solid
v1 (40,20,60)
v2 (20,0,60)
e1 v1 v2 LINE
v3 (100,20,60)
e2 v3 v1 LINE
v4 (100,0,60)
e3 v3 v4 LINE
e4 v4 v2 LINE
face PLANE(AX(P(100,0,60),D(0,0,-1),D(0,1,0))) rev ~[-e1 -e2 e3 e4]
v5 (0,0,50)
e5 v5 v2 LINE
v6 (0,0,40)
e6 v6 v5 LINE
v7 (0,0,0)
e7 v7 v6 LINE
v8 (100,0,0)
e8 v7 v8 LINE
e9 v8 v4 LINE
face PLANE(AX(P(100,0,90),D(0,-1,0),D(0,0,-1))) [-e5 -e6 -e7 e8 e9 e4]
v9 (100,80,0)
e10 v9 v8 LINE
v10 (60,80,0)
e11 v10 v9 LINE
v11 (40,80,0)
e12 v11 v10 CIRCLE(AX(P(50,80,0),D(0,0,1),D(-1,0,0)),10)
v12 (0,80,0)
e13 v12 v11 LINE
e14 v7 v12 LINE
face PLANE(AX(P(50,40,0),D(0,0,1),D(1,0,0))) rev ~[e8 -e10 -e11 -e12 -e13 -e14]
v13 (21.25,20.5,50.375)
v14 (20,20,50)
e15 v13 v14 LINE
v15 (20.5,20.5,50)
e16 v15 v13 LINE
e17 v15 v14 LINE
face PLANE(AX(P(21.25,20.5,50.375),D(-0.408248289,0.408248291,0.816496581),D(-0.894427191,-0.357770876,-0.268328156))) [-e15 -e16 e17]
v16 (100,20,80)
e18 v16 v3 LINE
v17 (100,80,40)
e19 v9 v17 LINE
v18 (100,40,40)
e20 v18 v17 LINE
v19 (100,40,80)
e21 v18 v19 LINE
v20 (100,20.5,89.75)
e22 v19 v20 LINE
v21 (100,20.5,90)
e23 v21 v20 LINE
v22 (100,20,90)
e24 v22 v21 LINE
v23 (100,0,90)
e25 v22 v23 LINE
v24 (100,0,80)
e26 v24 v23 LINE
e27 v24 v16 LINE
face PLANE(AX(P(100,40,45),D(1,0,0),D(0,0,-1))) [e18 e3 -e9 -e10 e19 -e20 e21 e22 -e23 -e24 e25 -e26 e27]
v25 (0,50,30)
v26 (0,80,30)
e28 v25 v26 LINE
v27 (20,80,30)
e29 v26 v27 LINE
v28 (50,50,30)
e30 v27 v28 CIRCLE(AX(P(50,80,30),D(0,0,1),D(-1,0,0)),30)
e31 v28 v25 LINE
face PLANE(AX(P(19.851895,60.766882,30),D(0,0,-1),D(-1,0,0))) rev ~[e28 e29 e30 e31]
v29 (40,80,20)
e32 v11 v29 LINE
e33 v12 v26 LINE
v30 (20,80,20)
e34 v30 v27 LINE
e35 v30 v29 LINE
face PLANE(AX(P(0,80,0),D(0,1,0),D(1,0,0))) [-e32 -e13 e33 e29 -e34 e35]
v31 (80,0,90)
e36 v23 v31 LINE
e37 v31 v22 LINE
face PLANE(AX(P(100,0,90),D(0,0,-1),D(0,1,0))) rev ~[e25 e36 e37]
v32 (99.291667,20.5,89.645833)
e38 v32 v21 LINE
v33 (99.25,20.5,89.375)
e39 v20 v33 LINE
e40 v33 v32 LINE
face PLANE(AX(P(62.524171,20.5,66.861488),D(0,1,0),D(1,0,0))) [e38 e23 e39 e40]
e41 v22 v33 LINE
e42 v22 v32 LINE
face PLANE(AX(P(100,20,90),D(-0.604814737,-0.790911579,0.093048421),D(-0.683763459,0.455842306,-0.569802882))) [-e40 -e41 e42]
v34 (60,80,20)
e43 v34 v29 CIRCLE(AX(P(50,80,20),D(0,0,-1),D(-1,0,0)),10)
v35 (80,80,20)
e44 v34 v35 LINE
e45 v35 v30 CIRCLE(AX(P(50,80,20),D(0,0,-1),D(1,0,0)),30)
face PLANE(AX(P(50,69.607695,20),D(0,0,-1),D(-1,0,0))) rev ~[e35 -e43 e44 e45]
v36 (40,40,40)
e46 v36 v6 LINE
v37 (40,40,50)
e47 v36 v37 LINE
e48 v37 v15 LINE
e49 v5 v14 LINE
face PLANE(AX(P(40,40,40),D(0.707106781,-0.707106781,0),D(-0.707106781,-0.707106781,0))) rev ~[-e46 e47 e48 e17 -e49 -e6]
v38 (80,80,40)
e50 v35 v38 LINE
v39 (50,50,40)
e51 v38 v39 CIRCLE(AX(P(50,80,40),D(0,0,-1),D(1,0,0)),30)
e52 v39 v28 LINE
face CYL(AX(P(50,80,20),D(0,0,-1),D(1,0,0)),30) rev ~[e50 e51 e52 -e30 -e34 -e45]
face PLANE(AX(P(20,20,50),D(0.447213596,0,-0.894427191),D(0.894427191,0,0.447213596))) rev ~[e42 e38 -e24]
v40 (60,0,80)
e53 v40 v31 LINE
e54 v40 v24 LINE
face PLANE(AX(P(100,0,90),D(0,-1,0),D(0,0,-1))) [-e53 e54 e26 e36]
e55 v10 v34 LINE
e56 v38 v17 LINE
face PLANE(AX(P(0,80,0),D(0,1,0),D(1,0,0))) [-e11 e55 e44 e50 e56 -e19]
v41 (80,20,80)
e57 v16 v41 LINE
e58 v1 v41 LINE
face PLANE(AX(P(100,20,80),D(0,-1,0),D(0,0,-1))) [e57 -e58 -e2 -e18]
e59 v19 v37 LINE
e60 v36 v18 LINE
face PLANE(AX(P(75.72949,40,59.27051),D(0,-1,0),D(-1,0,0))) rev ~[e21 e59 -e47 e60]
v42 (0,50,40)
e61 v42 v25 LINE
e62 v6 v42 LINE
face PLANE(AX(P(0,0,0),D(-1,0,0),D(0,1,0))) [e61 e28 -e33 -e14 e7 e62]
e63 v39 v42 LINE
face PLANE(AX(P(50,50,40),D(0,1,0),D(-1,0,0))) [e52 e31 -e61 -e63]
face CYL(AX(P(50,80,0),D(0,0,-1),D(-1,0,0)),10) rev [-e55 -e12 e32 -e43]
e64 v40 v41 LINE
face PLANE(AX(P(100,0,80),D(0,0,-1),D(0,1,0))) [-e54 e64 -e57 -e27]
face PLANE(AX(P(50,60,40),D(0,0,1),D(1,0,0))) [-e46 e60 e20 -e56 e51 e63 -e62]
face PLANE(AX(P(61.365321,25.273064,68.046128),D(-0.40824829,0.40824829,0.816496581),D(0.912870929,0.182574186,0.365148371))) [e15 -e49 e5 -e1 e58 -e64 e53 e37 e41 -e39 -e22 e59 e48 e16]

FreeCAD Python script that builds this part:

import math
import FreeCAD as App
import Part
import Sketcher
from FreeCAD import Vector
Q = App.Units.Quantity


def add_polygon(sketch, points):
    """Adds a closed chain of lines whose ends are joined by coincident constraints."""
    first, n = sketch.GeometryCount, len(points)
    for a, b in zip(points, points[1:] + points[:1]):
        sketch.addGeometry(Part.LineSegment(App.Vector(*a, 0), App.Vector(*b, 0)), False)
    for i in range(n):
        sketch.addConstraint(Sketcher.Constraint("Coincident", first + i, 2, first + (i + 1) % n, 1))

doc = App.newDocument("Part")
body = doc.addObject("PartDesign::Body", "Body")
body.AllowCompound = True

sketch1 = doc.addObject("Sketcher::SketchObject", "Sketch")
body.addObject(sketch1)
sketch1.AttachmentSupport = (doc.XY_Plane, [""])
sketch1.MapMode = "FlatFace"
add_polygon(sketch1, [(0, 80), (0, 0), (100, 0), (100, 80)])
sketch1.addConstraint(Sketcher.Constraint("Vertical", 0))
sketch1.addConstraint(Sketcher.Constraint("Horizontal", 1))
sketch1.addConstraint(Sketcher.Constraint("Vertical", 2))
sketch1.addConstraint(Sketcher.Constraint("Horizontal", 3))
sketch1.addConstraint(Sketcher.Constraint("Coincident", 0, 2, -1, 1))
sketch1.addConstraint(Sketcher.Constraint("DistanceX", 1, 1, 1, 2, 100.0))
sketch1.addConstraint(Sketcher.Constraint("DistanceY", 0, 2, 0, 1, 80.0))
pad1 = doc.addObject("PartDesign::Pad", "Pad")
body.addObject(pad1)
pad1.Profile = sketch1
pad1.Length = 90

sketch2 = doc.addObject("Sketcher::SketchObject", "Sketch001")
body.addObject(sketch2)
sketch2.AttachmentSupport = (doc.XZ_Plane, [""])
sketch2.MapMode = "FlatFace"
sketch2.AttachmentOffset = App.Placement(Vector(0, 0, -80), App.Rotation())
add_polygon(sketch2, [(20, 60), (0, 50), (0, 90), (80, 90), (60, 80), (80, 80), (40, 60)])
sketch2.addConstraint(Sketcher.Constraint("Vertical", 1))
sketch2.addConstraint(Sketcher.Constraint("Horizontal", 2))
sketch2.addConstraint(Sketcher.Constraint("Horizontal", 4))
sketch2.addConstraint(Sketcher.Constraint("Horizontal", 6))
sketch2.addConstraint(Sketcher.Constraint("PointOnObject", 0, 2, -2))
sketch2.addConstraint(Sketcher.Constraint("Parallel", 0, 3))
sketch2.addConstraint(Sketcher.Constraint("Parallel", 3, 5))
sketch2.addConstraint(Sketcher.Constraint("Vertical", 2, 2, 4, 2))
sketch2.addConstraint(Sketcher.Constraint("Equal", 4, 6))
sketch2.addConstraint(Sketcher.Constraint("Equal", 0, 3))
sketch2.addConstraint(Sketcher.Constraint("DistanceX", 2, 1, 2, 2, 80.0))
sketch2.addConstraint(Sketcher.Constraint("DistanceX", 4, 1, 4, 2, 20.0))
sketch2.addConstraint(Sketcher.Constraint("DistanceY", 1, 1, 1, 2, 40.0))
sketch2.addConstraint(Sketcher.Constraint("DistanceY", -1, 1, 0, 2, 50.0))
pocket1 = doc.addObject("PartDesign::Pocket", "Pocket")
body.addObject(pocket1)
pocket1.Profile = sketch2
pocket1.Length = 90
pocket1.Reversed = True

sketch3 = doc.addObject("Sketcher::SketchObject", "Sketch002")
body.addObject(sketch3)
sketch3.AttachmentSupport = (doc.YZ_Plane, [""])
sketch3.MapMode = "FlatFace"
sketch3.AttachmentOffset = App.Placement(Vector(0, 0, 100), App.Rotation())
add_polygon(sketch3, [(20, 80), (0, 80), (0, 60), (20, 60)])
sketch3.addConstraint(Sketcher.Constraint("Horizontal", 0))
sketch3.addConstraint(Sketcher.Constraint("Vertical", 1))
sketch3.addConstraint(Sketcher.Constraint("Horizontal", 2))
sketch3.addConstraint(Sketcher.Constraint("Vertical", 3))
sketch3.addConstraint(Sketcher.Constraint("PointOnObject", 0, 2, -2))
sketch3.addConstraint(Sketcher.Constraint("Equal", 2, 1))
sketch3.addConstraint(Sketcher.Constraint("DistanceX", 0, 2, 0, 1, 20.0))
sketch3.addConstraint(Sketcher.Constraint("DistanceY", -1, 1, 0, 2, 80.0))
pocket2 = doc.addObject("PartDesign::Pocket", "Pocket001")
body.addObject(pocket2)
pocket2.Profile = sketch3
pocket2.Length = 90

sketch4 = doc.addObject("Sketcher::SketchObject", "Sketch003")
body.addObject(sketch4)
sketch4.AttachmentSupport = (doc.XY_Plane, [""])
sketch4.MapMode = "FlatFace"
sketch4.addGeometry(Part.LineSegment(Vector(40, 80, 0), Vector(60, 80, 0)), False)
sketch4.addGeometry(Part.ArcOfCircle(Part.Circle(Vector(50, 80, 0), Vector(0, 0, 1), 10), math.radians(180), math.radians(360)), False)
sketch4.addConstraint(Sketcher.Constraint("Coincident", 0, 1, 1, 1))
sketch4.addConstraint(Sketcher.Constraint("Coincident", 1, 2, 0, 2))
sketch4.addConstraint(Sketcher.Constraint("Horizontal", 0))
sketch4.addConstraint(Sketcher.Constraint("Horizontal", 1, 3, 0, 1))
sketch4.addConstraint(Sketcher.Constraint("Radius", 1, 10.0))
sketch4.addConstraint(Sketcher.Constraint("DistanceX", -1, 1, 1, 3, 50.0))
sketch4.addConstraint(Sketcher.Constraint("DistanceY", -1, 1, 1, 3, 80.0))
pocket3 = doc.addObject("PartDesign::Pocket", "Pocket002")
body.addObject(pocket3)
pocket3.Profile = sketch4
pocket3.Length = 90
pocket3.Reversed = True

sketch5 = doc.addObject("Sketcher::SketchObject", "Sketch004")
body.addObject(sketch5)
sketch5.AttachmentSupport = (doc.XY_Plane, [""])
sketch5.MapMode = "FlatFace"
sketch5.AttachmentOffset = App.Placement(Vector(0, 0, 20), App.Rotation())
sketch5.addGeometry(Part.LineSegment(Vector(80, 80, 0), Vector(20, 80, 0)), False)
sketch5.addGeometry(Part.ArcOfCircle(Part.Circle(Vector(50, 80, 0), Vector(0, 0, 1), 30), math.radians(180), math.radians(360)), False)
sketch5.addConstraint(Sketcher.Constraint("Coincident", 0, 1, 1, 2))
sketch5.addConstraint(Sketcher.Constraint("Coincident", 1, 1, 0, 2))
sketch5.addConstraint(Sketcher.Constraint("Horizontal", 0))
sketch5.addConstraint(Sketcher.Constraint("Horizontal", 1, 3, 0, 1))
sketch5.addConstraint(Sketcher.Constraint("Radius", 1, 30.0))
sketch5.addConstraint(Sketcher.Constraint("DistanceX", -1, 1, 1, 3, 50.0))
sketch5.addConstraint(Sketcher.Constraint("DistanceY", -1, 1, 1, 3, 80.0))
pocket4 = doc.addObject("PartDesign::Pocket", "Pocket003")
body.addObject(pocket4)
pocket4.Profile = sketch5
pocket4.Length = 90
pocket4.Reversed = True

sketch6 = doc.addObject("Sketcher::SketchObject", "Sketch005")
body.addObject(sketch6)
sketch6.AttachmentSupport = (doc.XY_Plane, [""])
sketch6.MapMode = "FlatFace"
sketch6.AttachmentOffset = App.Placement(Vector(0, 0, 40), App.Rotation())
add_polygon(sketch6, [(0, 80), (0, 40), (100, 40), (100, 80)])
sketch6.addConstraint(Sketcher.Constraint("Vertical", 0))
sketch6.addConstraint(Sketcher.Constraint("Horizontal", 1))
sketch6.addConstraint(Sketcher.Constraint("Vertical", 2))
sketch6.addConstraint(Sketcher.Constraint("Horizontal", 3))
sketch6.addConstraint(Sketcher.Constraint("PointOnObject", 0, 2, -2))
sketch6.addConstraint(Sketcher.Constraint("DistanceX", 1, 1, 1, 2, 100.0))
sketch6.addConstraint(Sketcher.Constraint("DistanceY", 0, 2, 0, 1, 40.0))
sketch6.addConstraint(Sketcher.Constraint("DistanceY", -1, 1, 0, 2, 40.0))
pocket5 = doc.addObject("PartDesign::Pocket", "Pocket004")
body.addObject(pocket5)
pocket5.Profile = sketch6
pocket5.Length = 90
pocket5.Reversed = True

sketch7 = doc.addObject("Sketcher::SketchObject", "Sketch006")
body.addObject(sketch7)
sketch7.AttachmentSupport = (doc.XY_Plane, [""])
sketch7.MapMode = "FlatFace"
sketch7.AttachmentOffset = App.Placement(Vector(0, 0, 40), App.Rotation())
sketch7.addGeometry(Part.LineSegment(Vector(0, 50, 0), Vector(50, 50, 0)), False)
sketch7.addGeometry(Part.ArcOfCircle(Part.Circle(Vector(50, 80, 0), Vector(0, 0, 1), 30), math.radians(180), math.radians(270)), False)
sketch7.addGeometry(Part.LineSegment(Vector(20, 80, 0), Vector(0, 80, 0)), False)
sketch7.addGeometry(Part.LineSegment(Vector(0, 80, 0), Vector(0, 50, 0)), False)
sketch7.addConstraint(Sketcher.Constraint("Tangent", 0, 2, 1, 2))
sketch7.addConstraint(Sketcher.Constraint("Coincident", 1, 1, 2, 1))
sketch7.addConstraint(Sketcher.Constraint("Coincident", 2, 2, 3, 1))
sketch7.addConstraint(Sketcher.Constraint("Coincident", 3, 2, 0, 1))
sketch7.addConstraint(Sketcher.Constraint("Horizontal", 0))
sketch7.addConstraint(Sketcher.Constraint("Horizontal", 2))
sketch7.addConstraint(Sketcher.Constraint("Vertical", 3))
sketch7.addConstraint(Sketcher.Constraint("PointOnObject", 2, 2, -2))
sketch7.addConstraint(Sketcher.Constraint("Radius", 1, 30.0))
sketch7.addConstraint(Sketcher.Constraint("DistanceX", 0, 1, 0, 2, 50.0))
sketch7.addConstraint(Sketcher.Constraint("DistanceY", 3, 2, 3, 1, 30.0))
sketch7.addConstraint(Sketcher.Constraint("DistanceY", -1, 1, 1, 3, 80.0))
pocket6 = doc.addObject("PartDesign::Pocket", "Pocket005")
body.addObject(pocket6)
pocket6.Profile = sketch7
pocket6.Length = 10

sketch8 = doc.addObject("Sketcher::SketchObject", "Sketch007")
body.addObject(sketch8)
sketch8.AttachmentSupport = (doc.XY_Plane, [""])
sketch8.MapMode = "FlatFace"
sketch8.AttachmentOffset = App.Placement(Vector(0, 0, 40), App.Rotation())
add_polygon(sketch8, [(0, 0), (40, 40), (0, 40)])
sketch8.addConstraint(Sketcher.Constraint("Horizontal", 1))
sketch8.addConstraint(Sketcher.Constraint("Vertical", 2))
sketch8.addConstraint(Sketcher.Constraint("Coincident", 2, 2, -1, 1))
sketch8.addConstraint(Sketcher.Constraint("Equal", 1, 2))
sketch8.addConstraint(Sketcher.Constraint("DistanceX", 1, 2, 1, 1, 40.0))
pocket7 = doc.addObject("PartDesign::Pocket", "Pocket006")
body.addObject(pocket7)
pocket7.Profile = sketch8
pocket7.Length = 94
pocket7.Reversed = True

sketch9 = doc.addObject("Sketcher::SketchObject", "Sketch008")
body.addObject(sketch9)
sketch9.AttachmentSupport = (doc.XY_Plane, [""])
sketch9.MapMode = "FlatFace"
sketch9.AttachmentOffset = App.Placement(Vector(0, 0, 50), App.Rotation())
add_polygon(sketch9, [(0, 50), (0, 0), (100, 0), (100, 50)])
sketch9.addConstraint(Sketcher.Constraint("Vertical", 0))
sketch9.addConstraint(Sketcher.Constraint("Horizontal", 1))
sketch9.addConstraint(Sketcher.Constraint("Vertical", 2))
sketch9.addConstraint(Sketcher.Constraint("Horizontal", 3))
sketch9.addConstraint(Sketcher.Constraint("Coincident", 0, 2, -1, 1))
sketch9.addConstraint(Sketcher.Constraint("DistanceX", 1, 1, 1, 2, 100.0))
sketch9.addConstraint(Sketcher.Constraint("DistanceY", 0, 2, 0, 1, 50.0))
pocket8 = doc.addObject("PartDesign::Pocket", "Pocket007")
body.addObject(pocket8)
pocket8.Profile = sketch9
pocket8.Length = 94
pocket8.Reversed = True

sketch10 = doc.addObject("Sketcher::SketchObject", "Sketch009")
body.addObject(sketch10)
sketch10.AttachmentSupport = (doc.XZ_Plane, [""])
sketch10.MapMode = "FlatFace"
sketch10.AttachmentOffset = App.Placement(Vector(0, 0, -40), App.Rotation())
add_polygon(sketch10, [(100, 80), (100, 50), (40, 50)])
sketch10.addConstraint(Sketcher.Constraint("Vertical", 0))
sketch10.addConstraint(Sketcher.Constraint("Horizontal", 1))
sketch10.addConstraint(Sketcher.Constraint("DistanceX", 1, 2, 1, 1, 60.0))
sketch10.addConstraint(Sketcher.Constraint("DistanceY", 0, 2, 0, 1, 30.0))
sketch10.addConstraint(Sketcher.Constraint("DistanceX", -1, 1, 0, 2, 100.0))
sketch10.addConstraint(Sketcher.Constraint("DistanceY", -1, 1, 0, 2, 50.0))
pad2 = doc.addObject("PartDesign::Pad", "Pad001")
body.addObject(pad2)
pad2.Profile = sketch10
pad2.Length = 40

sketch11 = doc.addObject("Sketcher::SketchObject", "Sketch010")
body.addObject(sketch11)
sketch11.AttachmentSupport = (doc.XY_Plane, [""])
sketch11.MapMode = "FlatFace"
sketch11.AttachmentOffset = App.Placement(Vector(0, 0, 50), App.Rotation())
add_polygon(sketch11, [(40, 20), (20, 0), (100, 0), (100, 20)])
sketch11.addConstraint(Sketcher.Constraint("Horizontal", 1))
sketch11.addConstraint(Sketcher.Constraint("Vertical", 2))
sketch11.addConstraint(Sketcher.Constraint("Horizontal", 3))
sketch11.addConstraint(Sketcher.Constraint("PointOnObject", 0, 2, -1))
sketch11.addConstraint(Sketcher.Constraint("DistanceX", 1, 1, 1, 2, 80.0))
sketch11.addConstraint(Sketcher.Constraint("DistanceX", 3, 2, 3, 1, 60.0))
sketch11.addConstraint(Sketcher.Constraint("DistanceY", 2, 1, 2, 2, 20.0))
sketch11.addConstraint(Sketcher.Constraint("DistanceX", -1, 1, 0, 2, 20.0))
pad3 = doc.addObject("PartDesign::Pad", "Pad002")
body.addObject(pad3)
pad3.Profile = sketch11
pad3.Length = 10

sketch12 = doc.addObject("Sketcher::SketchObject", "Sketch011")
body.addObject(sketch12)
sketch12.Placement = App.Placement(Vector(-16.666667, 16.666667, 33.333333), App.Rotation(Vector(-0.912870929, -0.182574186, -0.365148371), Vector(-0.000000001, 0.89442719, -0.447213595), Vector(0.40824829, -0.40824829, -0.816496581), "ZXY"))
add_polygon(sketch12, [(-42.075223, -2.913524), (-62.075223, -8.944272), (-40.166321, -26.832816), (-18.257419, -22.36068)])
sketch12.addConstraint(Sketcher.Constraint("Parallel", 1, 3))
sketch12.addConstraint(Sketcher.Constraint("DistanceX", 0, 2, 3, 2, 20.0))
sketch12.addConstraint(Sketcher.Constraint("Distance", 0, 20.889469))
sketch12.addConstraint(Sketcher.Constraint("Distance", 1, 28.284271))
sketch12.addConstraint(Sketcher.Constraint("Distance", 2, 22.36068))
sketch12.addConstraint(Sketcher.Constraint("DistanceY", 0, 2, -1, 1, 8.944272))
sketch12.addConstraint(Sketcher.Constraint("DistanceX", 1, 2, -1, 1, 40.166321))
sketch12.addConstraint(Sketcher.Constraint("DistanceX", 2, 2, -1, 1, 18.257419))
pad4 = doc.addObject("PartDesign::Pad", "Pad003")
body.addObject(pad4)
pad4.Profile = sketch12
pad4.Length = 10

sketch13 = doc.addObject("Sketcher::SketchObject", "Sketch012")
body.addObject(sketch13)
sketch13.AttachmentSupport = (doc.XZ_Plane, [""])
sketch13.MapMode = "FlatFace"
sketch13.AttachmentOffset = App.Placement(Vector(0, 0, -20), App.Rotation())
add_polygon(sketch13, [(40, 60), (40, 50), (22, 50)])
sketch13.addConstraint(Sketcher.Constraint("Vertical", 0))
sketch13.addConstraint(Sketcher.Constraint("Horizontal", 1))
sketch13.addConstraint(Sketcher.Constraint("DistanceY", 0, 2, 0, 1, 10.0))
sketch13.addConstraint(Sketcher.Constraint("DistanceX", -1, 1, 0, 2, 40.0))
sketch13.addConstraint(Sketcher.Constraint("DistanceY", -1, 1, 0, 2, 50.0))
sketch13.addConstraint(Sketcher.Constraint("DistanceX", 1, 2, 1, 1, 18.257419))
pad5 = doc.addObject("PartDesign::Pad", "Pad004")
body.addObject(pad5)
pad5.Profile = sketch13
pad5.Length = 10

sketch14 = doc.addObject("Sketcher::SketchObject", "Sketch013")
body.addObject(sketch14)
sketch14.AttachmentSupport = (doc.YZ_Plane, [""])
sketch14.MapMode = "FlatFace"
sketch14.AttachmentOffset = App.Placement(Vector(0, 0, 40), App.Rotation())
add_polygon(sketch14, [(40, 64), (20, 64), (20, 50), (40, 50)])
sketch14.addConstraint(Sketcher.Constraint("Horizontal", 0))
sketch14.addConstraint(Sketcher.Constraint("Vertical", 1))
sketch14.addConstraint(Sketcher.Constraint("Horizontal", 2))
sketch14.addConstraint(Sketcher.Constraint("Vertical", 3))
sketch14.addConstraint(Sketcher.Constraint("DistanceX", -1, 1, 0, 2, 20.0))
sketch14.addConstraint(Sketcher.Constraint("DistanceY", -1, 1, 1, 2, 50.0))
sketch14.addConstraint(Sketcher.Constraint("DistanceX", 0, 2, 0, 1, 19.75156))
sketch14.addConstraint(Sketcher.Constraint("DistanceY", 1, 2, 1, 1, 13.645756))
pocket9 = doc.addObject("PartDesign::Pocket", "Pocket008")
body.addObject(pocket9)
pocket9.Profile = sketch14
pocket9.Length = 57

sketch15 = doc.addObject("Sketcher::SketchObject", "Sketch014")
body.addObject(sketch15)
sketch15.AttachmentSupport = (doc.XZ_Plane, [""])
sketch15.MapMode = "FlatFace"
sketch15.AttachmentOffset = App.Placement(Vector(0, 0, -20), App.Rotation())
add_polygon(sketch15, [(20, 50), (100, 90), (40, 50)])
sketch15.addConstraint(Sketcher.Constraint("Horizontal", 2))
sketch15.addConstraint(Sketcher.Constraint("DistanceX", 2, 2, 2, 1, 20.0))
sketch15.addConstraint(Sketcher.Constraint("DistanceX", -1, 1, 0, 2, 100.0))
sketch15.addConstraint(Sketcher.Constraint("DistanceY", -1, 1, 0, 2, 90.0))
sketch15.addConstraint(Sketcher.Constraint("DistanceX", -1, 1, 1, 2, 40.0))
sketch15.addConstraint(Sketcher.Constraint("DistanceY", -1, 1, 1, 2, 50.0))
pad6 = doc.addObject("PartDesign::Pad", "Pad005")
body.addObject(pad6)
pad6.Profile = sketch15
pad6.Length = 20

sketch16 = doc.addObject("Sketcher::SketchObject", "Sketch015")
body.addObject(sketch16)
sketch16.AttachmentSupport = (doc.XZ_Plane, [""])
sketch16.MapMode = "FlatFace"
sketch16.AttachmentOffset = App.Placement(Vector(0, 0, -20), App.Rotation())
add_polygon(sketch16, [(100, 90), (100, 80), (60, 60), (55, 60)])
sketch16.addConstraint(Sketcher.Constraint("Vertical", 0))
sketch16.addConstraint(Sketcher.Constraint("Horizontal", 2))
sketch16.addConstraint(Sketcher.Constraint("DistanceX", 2, 2, 2, 1, 5.0))
sketch16.addConstraint(Sketcher.Constraint("DistanceY", 0, 2, 0, 1, 10.0))
sketch16.addConstraint(Sketcher.Constraint("DistanceX", -1, 1, 0, 2, 100.0))
sketch16.addConstraint(Sketcher.Constraint("DistanceY", -1, 1, 0, 2, 80.0))
sketch16.addConstraint(Sketcher.Constraint("DistanceX", -1, 1, 1, 2, 60.0))
sketch16.addConstraint(Sketcher.Constraint("DistanceY", -1, 1, 1, 2, 60.0))
pad7 = doc.addObject("PartDesign::Pad", "Pad006")
body.addObject(pad7)
pad7.Profile = sketch16
pad7.Length = 20

sketch17 = doc.addObject("Sketcher::SketchObject", "Sketch016")
body.addObject(sketch17)
sketch17.AttachmentSupport = (doc.YZ_Plane, [""])
sketch17.MapMode = "FlatFace"
sketch17.AttachmentOffset = App.Placement(Vector(0, 0, 100), App.Rotation())
add_polygon(sketch17, [(20, 90), (0, 90), (0, 80), (20, 80)])
sketch17.addConstraint(Sketcher.Constraint("Horizontal", 0))
sketch17.addConstraint(Sketcher.Constraint("Vertical", 1))
sketch17.addConstraint(Sketcher.Constraint("Horizontal", 2))
sketch17.addConstraint(Sketcher.Constraint("Vertical", 3))
sketch17.addConstraint(Sketcher.Constraint("PointOnObject", 0, 2, -2))
sketch17.addConstraint(Sketcher.Constraint("DistanceX", 0, 2, 0, 1, 20.0))
sketch17.addConstraint(Sketcher.Constraint("DistanceY", 1, 2, 1, 1, 10.0))
sketch17.addConstraint(Sketcher.Constraint("DistanceY", -1, 1, 0, 2, 90.0))
pad8 = doc.addObject("PartDesign::Pad", "Pad007")
body.addObject(pad8)
pad8.Profile = sketch17
pad8.Length = 40
pad8.Reversed = True

sketch18 = doc.addObject("Sketcher::SketchObject", "Sketch017")
body.addObject(sketch18)
sketch18.Placement = App.Placement(Vector(-16.666667, 16.666667, 33.333333), App.Rotation(Vector(0.912870929, 0.182574186, 0.365148371), Vector(-0.000000001, 0.89442719, -0.447213595), Vector(-0.40824829, 0.40824829, 0.816496581), "ZXY"))
add_polygon(sketch18, [(106, -18), (84, -36), (106, -40)])
sketch18.addConstraint(Sketcher.Constraint("Vertical", 2))
sketch18.addConstraint(Sketcher.Constraint("DistanceY", 2, 1, 2, 2, 22.36068))
sketch18.addConstraint(Sketcher.Constraint("Distance", 0, 28.284271))
sketch18.addConstraint(Sketcher.Constraint("Distance", 1, 22.36068))
sketch18.addConstraint(Sketcher.Constraint("DistanceX", -1, 1, 0, 2, 83.984125))
sketch18.addConstraint(Sketcher.Constraint("DistanceY", 0, 2, -1, 1, 35.777088))
pocket10 = doc.addObject("PartDesign::Pocket", "Pocket009")
body.addObject(pocket10)
pocket10.Profile = sketch18
pocket10.Length = 40
pocket10.Reversed = True

sketch19 = doc.addObject("Sketcher::SketchObject", "Sketch018")
body.addObject(sketch19)
sketch19.Placement = App.Placement(Vector(-3.333333, -16.666667, 6.666667), App.Rotation(Vector(0.98319208, -0.169515876, 0.06780635), Vector(0, -0.371390677, -0.928476691), Vector(0.182574186, 0.912870929, -0.365148372), "ZXY"))
add_polygon(sketch19, [(85, -84), (64, -74), (64, -85)])
sketch19.addConstraint(Sketcher.Constraint("Vertical", 1))
sketch19.addConstraint(Sketcher.Constraint("DistanceY", 1, 2, 1, 1, 10.77033))
sketch19.addConstraint(Sketcher.Constraint("Distance", 0, 22.36068))
sketch19.addConstraint(Sketcher.Constraint("Distance", 2, 20.396078))
sketch19.addConstraint(Sketcher.Constraint("DistanceX", -1, 1, 0, 2, 64.416033))
sketch19.addConstraint(Sketcher.Constraint("DistanceY", 0, 2, -1, 1, 74.278135))
pocket11 = doc.addObject("PartDesign::Pocket", "Pocket010")
body.addObject(pocket11)
pocket11.Profile = sketch19
pocket11.Length = 40

sketch20 = doc.addObject("Sketcher::SketchObject", "Sketch019")
body.addObject(sketch20)
sketch20.AttachmentSupport = (doc.XY_Plane, [""])
sketch20.MapMode = "FlatFace"
sketch20.AttachmentOffset = App.Placement(Vector(0, 0, 80), App.Rotation())
add_polygon(sketch20, [(80, 20), (60, 0), (60, 20)])
sketch20.addConstraint(Sketcher.Constraint("Vertical", 1))
sketch20.addConstraint(Sketcher.Constraint("Horizontal", 2))
sketch20.addConstraint(Sketcher.Constraint("PointOnObject", 0, 2, -1))
sketch20.addConstraint(Sketcher.Constraint("Equal", 2, 1))
sketch20.addConstraint(Sketcher.Constraint("DistanceX", 2, 1, 2, 2, 20.0))
sketch20.addConstraint(Sketcher.Constraint("DistanceX", -1, 1, 0, 2, 60.0))
pocket12 = doc.addObject("PartDesign::Pocket", "Pocket011")
body.addObject(pocket12)
pocket12.Profile = sketch20
pocket12.Length = 40
pocket12.Reversed = True

sketch21 = doc.addObject("Sketcher::SketchObject", "Sketch020")
body.addObject(sketch21)
sketch21.Placement = App.Placement(Vector(-16.666667, 16.666667, 33.333333), App.Rotation(Vector(-0.912870929, -0.182574186, -0.365148371), Vector(-0.000000001, 0.89442719, -0.447213595), Vector(0.40824829, -0.40824829, -0.816496581), "ZXY"))
add_polygon(sketch21, [(-106, -40), (-106, -18), (-128, -22)])
sketch21.addConstraint(Sketcher.Constraint("Vertical", 0))
sketch21.addConstraint(Sketcher.Constraint("DistanceY", 0, 1, 0, 2, 22.36068))
sketch21.addConstraint(Sketcher.Constraint("Distance", 1, 22.36068))
sketch21.addConstraint(Sketcher.Constraint("Distance", 2, 28.284271))
sketch21.addConstraint(Sketcher.Constraint("DistanceX", 1, 2, -1, 1, 127.80193))
sketch21.addConstraint(Sketcher.Constraint("DistanceY", 1, 2, -1, 1, 22.36068))
pocket13 = doc.addObject("PartDesign::Pocket", "Pocket012")
body.addObject(pocket13)
pocket13.Profile = sketch21
pocket13.Length = 40

sketch22 = doc.addObject("Sketcher::SketchObject", "Sketch021")
body.addObject(sketch22)
sketch22.AttachmentSupport = (doc.YZ_Plane, [""])
sketch22.MapMode = "FlatFace"
sketch22.AttachmentOffset = App.Placement(Vector(0, 0, 100), App.Rotation())
add_polygon(sketch22, [(20, 80), (0, 80), (0, 60), (20, 60)])
sketch22.addConstraint(Sketcher.Constraint("Horizontal", 0))
sketch22.addConstraint(Sketcher.Constraint("Vertical", 1))
sketch22.addConstraint(Sketcher.Constraint("Horizontal", 2))
sketch22.addConstraint(Sketcher.Constraint("Vertical", 3))
sketch22.addConstraint(Sketcher.Constraint("PointOnObject", 0, 2, -2))
sketch22.addConstraint(Sketcher.Constraint("DistanceY", 1, 2, 1, 1, 20.0))
sketch22.addConstraint(Sketcher.Constraint("DistanceY", -1, 1, 0, 2, 80.0))
sketch22.addConstraint(Sketcher.Constraint("DistanceX", 0, 2, 0, 1, 19.999))
pocket14 = doc.addObject("PartDesign::Pocket", "Pocket013")
body.addObject(pocket14)
pocket14.Profile = sketch22
pocket14.Length = 125

sketch23 = doc.addObject("Sketcher::SketchObject", "Sketch022")
body.addObject(sketch23)
sketch23.AttachmentSupport = (doc.XZ_Plane, [""])
sketch23.MapMode = "FlatFace"
sketch23.AttachmentOffset = App.Placement(Vector(0, 0, -20), App.Rotation())
add_polygon(sketch23, [(40, 50), (20, 50), (100, 90), (100, 80)])
sketch23.addConstraint(Sketcher.Constraint("Horizontal", 0))
sketch23.addConstraint(Sketcher.Constraint("Vertical", 2))
sketch23.addConstraint(Sketcher.Constraint("Parallel", 1, 3))
sketch23.addConstraint(Sketcher.Constraint("DistanceX", 0, 2, 0, 1, 20.0))
sketch23.addConstraint(Sketcher.Constraint("DistanceY", 2, 2, 2, 1, 10.0))
sketch23.addConstraint(Sketcher.Constraint("DistanceX", -1, 1, 0, 2, 20.0))
sketch23.addConstraint(Sketcher.Constraint("DistanceY", -1, 1, 0, 2, 50.0))
sketch23.addConstraint(Sketcher.Constraint("DistanceX", -1, 1, 1, 2, 100.0))
pad9 = doc.addObject("PartDesign::Pad", "Pad008")
body.addObject(pad9)
pad9.Profile = sketch23
pad9.Length = 0.5
pad9.Reversed = True

sketch24 = doc.addObject("Sketcher::SketchObject", "Sketch023")
body.addObject(sketch24)
sketch24.Placement = App.Placement(Vector(-16.666667, 16.666667, 33.333333), App.Rotation(Vector(0.912870929, 0.182574186, 0.365148371), Vector(-0.000000001, 0.89442719, -0.447213595), Vector(-0.40824829, 0.40824829, 0.816496581), "ZXY"))
add_polygon(sketch24, [(40, -4), (128, -22), (95, 7)])
sketch24.addConstraint(Sketcher.Constraint("Distance", 2, 55.901699))
sketch24.addConstraint(Sketcher.Constraint("Distance", 0, 89.442719))
sketch24.addConstraint(Sketcher.Constraint("Distance", 1, 43.874822))
sketch24.addConstraint(Sketcher.Constraint("DistanceX", -1, 1, 0, 2, 127.80193))
sketch24.addConstraint(Sketcher.Constraint("DistanceY", 0, 2, -1, 1, 22.36068))
sketch24.addConstraint(Sketcher.Constraint("DistanceX", -1, 1, 2, 2, 40.166321))
pocket15 = doc.addObject("PartDesign::Pocket", "Pocket014")
body.addObject(pocket15)
pocket15.Profile = sketch24
pocket15.Length = 0.5
pocket15.Reversed = True

sketch25 = doc.addObject("Sketcher::SketchObject", "Sketch024")
body.addObject(sketch25)
sketch25.Placement = App.Placement(Vector(2.266667, -10.426667, 6.346667), App.Rotation(Vector(0.98319208, 0.155954606, -0.094928891), Vector(0, 0.519946947, 0.854198556), Vector(0.182574186, -0.839841255, 0.51120772), "ZXY"))
add_polygon(sketch25, [(19.31, 53.69), (19.01, 53.78), (18.04, 53.11)])
sketch25.addConstraint(Sketcher.Constraint("Distance", 0, 0.30971))
sketch25.addConstraint(Sketcher.Constraint("Distance", 1, 1.182372))
sketch25.addConstraint(Sketcher.Constraint("DistanceX", -1, 1, 1, 2, 18.036489))
sketch25.addConstraint(Sketcher.Constraint("DistanceX", -1, 1, 2, 2, 19.307858))
sketch25.addConstraint(Sketcher.Constraint("DistanceY", 2, 2, 0, 2, 0.088979))
sketch25.addConstraint(Sketcher.Constraint("DistanceY", -1, 1, 0, 2, 53.778144))
pocket16 = doc.addObject("PartDesign::Pocket", "Pocket015")
body.addObject(pocket16)
pocket16.Profile = sketch25
pocket16.Length = 2.5

sketch26 = doc.addObject("Sketcher::SketchObject", "Sketch025")
body.addObject(sketch26)
sketch26.Placement = App.Placement(Vector(0, 0, 0), App.Rotation(Vector(0, 0, 1), Vector(0.707106781, 0.707106781, 0), Vector(-0.707106781, 0.707106781, 0), "ZXY"))
add_polygon(sketch26, [(48.9, 31.1), (48.9, 27.1), (50, 27.1), (50, 31.1)])
sketch26.addConstraint(Sketcher.Constraint("Vertical", 0))
sketch26.addConstraint(Sketcher.Constraint("Horizontal", 1))
sketch26.addConstraint(Sketcher.Constraint("Vertical", 2))
sketch26.addConstraint(Sketcher.Constraint("Horizontal", 3))
sketch26.addConstraint(Sketcher.Constraint("DistanceX", -1, 1, 1, 2, 50.0))
sketch26.addConstraint(Sketcher.Constraint("DistanceX", 1, 1, 1, 2, 1.148729))
sketch26.addConstraint(Sketcher.Constraint("DistanceY", 0, 2, 0, 1, 4.006965))
sketch26.addConstraint(Sketcher.Constraint("DistanceY", -1, 1, 0, 2, 27.058583))
pad10 = doc.addObject("PartDesign::Pad", "Pad009")
body.addObject(pad10)
pad10.Profile = sketch26
pad10.Length = 2.5
pad10.Reversed = True

sketch27 = doc.addObject("Sketcher::SketchObject", "Sketch026")
body.addObject(sketch27)
sketch27.AttachmentSupport = (doc.XY_Plane, [""])
sketch27.MapMode = "FlatFace"
sketch27.AttachmentOffset = App.Placement(Vector(0, 0, 50), App.Rotation())
add_polygon(sketch27, [(20.31, 20.5), (20, 20), (20, 20.5)])
sketch27.addConstraint(Sketcher.Constraint("Vertical", 1))
sketch27.addConstraint(Sketcher.Constraint("Horizontal", 2))
sketch27.addConstraint(Sketcher.Constraint("DistanceY", 1, 1, 1, 2, 0.5))
sketch27.addConstraint(Sketcher.Constraint("DistanceX", -1, 1, 0, 2, 20.0))
sketch27.addConstraint(Sketcher.Constraint("DistanceY", -1, 1, 0, 2, 20.0))
sketch27.addConstraint(Sketcher.Constraint("DistanceX", 2, 1, 2, 2, 0.30578))
pocket17 = doc.addObject("PartDesign::Pocket", "Pocket016")
body.addObject(pocket17)
pocket17.Profile = sketch27
pocket17.Length = 2.5
pocket17.Reversed = True

sketch28 = doc.addObject("Sketcher::SketchObject", "Sketch027")
body.addObject(sketch28)
sketch28.Placement = App.Placement(Vector(-18.683928, 11.426356, 25.444702), App.Rotation(Vector(-0.830826198, -0.22798675, -0.507690723), Vector(0.000000001, 0.912240005, -0.409656164), Vector(0.556531965, -0.340353074, -0.757912895), "ZXY"))
add_polygon(sketch28, [(-46.9, -1.8), (-47.7, -2), (-46.6, -2.2)])
sketch28.addConstraint(Sketcher.Constraint("Distance", 1, 1.182372))
sketch28.addConstraint(Sketcher.Constraint("Distance", 2, 0.58609))
sketch28.addConstraint(Sketcher.Constraint("DistanceY", 0, 2, -1, 1, 1.978182))
sketch28.addConstraint(Sketcher.Constraint("DistanceY", 1, 2, -1, 1, 2.238008))
sketch28.addConstraint(Sketcher.Constraint("DistanceX", 2, 2, -1, 1, 46.928839))
sketch28.addConstraint(Sketcher.Constraint("DistanceY", 2, 2, -1, 1, 1.781888))
pocket18 = doc.addObject("PartDesign::Pocket", "Pocket017")
body.addObject(pocket18)
pocket18.Profile = sketch28
pocket18.Length = 2.5

sketch29 = doc.addObject("Sketcher::SketchObject", "Sketch028")
body.addObject(sketch29)
sketch29.AttachmentSupport = (doc.XZ_Plane, [""])
sketch29.MapMode = "FlatFace"
add_polygon(sketch29, [(0, 60), (0, 0), (100, 0), (100, 60)])
sketch29.addConstraint(Sketcher.Constraint("Vertical", 0))
sketch29.addConstraint(Sketcher.Constraint("Horizontal", 1))
sketch29.addConstraint(Sketcher.Constraint("Vertical", 2))
sketch29.addConstraint(Sketcher.Constraint("Horizontal", 3))
sketch29.addConstraint(Sketcher.Constraint("Coincident", 0, 2, -1, 1))
sketch29.addConstraint(Sketcher.Constraint("DistanceX", 1, 1, 1, 2, 100.0))
sketch29.addConstraint(Sketcher.Constraint("DistanceY", 0, 2, 0, 1, 60.0))
pocket19 = doc.addObject("PartDesign::Pocket", "Pocket018")
body.addObject(pocket19)
pocket19.Profile = sketch29
pocket19.Length = 39.5
pocket19.Reversed = True

sketch30 = doc.addObject("Sketcher::SketchObject", "Sketch029")
body.addObject(sketch30)
sketch30.Placement = App.Placement(Vector(-16.666667, 16.666667, 33.333333), App.Rotation(Vector(0.912870929, 0.182574186, 0.365148371), Vector(-0.000000001, 0.89442719, -0.447213595), Vector(-0.40824829, 0.40824829, 0.816496581), "ZXY"))
add_polygon(sketch30, [(62, 13), (40, -4), (128, -22), (128, 0)])
sketch30.addConstraint(Sketcher.Constraint("Vertical", 2))
sketch30.addConstraint(Sketcher.Constraint("PointOnObject", 2, 2, -1))
sketch30.addConstraint(Sketcher.Constraint("Parallel", 1, 3))
sketch30.addConstraint(Sketcher.Constraint("DistanceY", 2, 1, 2, 2, 22.36068))
sketch30.addConstraint(Sketcher.Constraint("Distance", 0, 28.284271))
sketch30.addConstraint(Sketcher.Constraint("Distance", 1, 89.442719))
sketch30.addConstraint(Sketcher.Constraint("Distance", 3, 67.082039))
sketch30.addConstraint(Sketcher.Constraint("DistanceX", -1, 1, 0, 2, 40.166321))
pad11 = doc.addObject("PartDesign::Pad", "Pad010")
body.addObject(pad11)
pad11.Profile = sketch30
pad11.Length = 80
pad11.Reversed = True

sketch31 = doc.addObject("Sketcher::SketchObject", "Sketch030")
body.addObject(sketch31)
sketch31.AttachmentSupport = (doc.YZ_Plane, [""])
sketch31.MapMode = "FlatFace"
sketch31.AttachmentOffset = App.Placement(Vector(0, 0, 100), App.Rotation())
add_polygon(sketch31, [(80, 90), (0, 90), (0, 0), (80, 0)])
sketch31.addConstraint(Sketcher.Constraint("Horizontal", 0))
sketch31.addConstraint(Sketcher.Constraint("Vertical", 1))
sketch31.addConstraint(Sketcher.Constraint("Horizontal", 2))
sketch31.addConstraint(Sketcher.Constraint("Vertical", 3))
sketch31.addConstraint(Sketcher.Constraint("Coincident", 1, 2, -1, 1))
sketch31.addConstraint(Sketcher.Constraint("DistanceX", 0, 2, 0, 1, 80.0))
sketch31.addConstraint(Sketcher.Constraint("DistanceY", 1, 2, 1, 1, 90.0))
pocket20 = doc.addObject("PartDesign::Pocket", "Pocket019")
body.addObject(pocket20)
pocket20.Profile = sketch31
pocket20.Length = 80
pocket20.Reversed = True

sketch32 = doc.addObject("Sketcher::SketchObject", "Sketch031")
body.addObject(sketch32)
sketch32.AttachmentSupport = (doc.XZ_Plane, [""])
sketch32.MapMode = "FlatFace"
add_polygon(sketch32, [(0, 50), (0, 0), (100, 0), (100, 50)])
sketch32.addConstraint(Sketcher.Constraint("Vertical", 0))
sketch32.addConstraint(Sketcher.Constraint("Horizontal", 1))
sketch32.addConstraint(Sketcher.Constraint("Vertical", 2))
sketch32.addConstraint(Sketcher.Constraint("Horizontal", 3))
sketch32.addConstraint(Sketcher.Constraint("Coincident", 0, 2, -1, 1))
sketch32.addConstraint(Sketcher.Constraint("DistanceX", 1, 1, 1, 2, 100.0))
sketch32.addConstraint(Sketcher.Constraint("DistanceY", 0, 2, 0, 1, 50.0))
pocket21 = doc.addObject("PartDesign::Pocket", "Pocket020")
body.addObject(pocket21)
pocket21.Profile = sketch32
pocket21.Length = 80
pocket21.Reversed = True

sketch33 = doc.addObject("Sketcher::SketchObject", "Sketch032")
body.addObject(sketch33)
sketch33.AttachmentSupport = (doc.XZ_Plane, [""])
sketch33.MapMode = "FlatFace"
add_polygon(sketch33, [(100, 40), (120, 50), (133, 18), (100, 2)])
sketch33.addConstraint(Sketcher.Constraint("Vertical", 3))
sketch33.addConstraint(Sketcher.Constraint("Parallel", 0, 2))
sketch33.addConstraint(Sketcher.Constraint("DistanceX", -1, 1, 0, 2, 120.0))
sketch33.addConstraint(Sketcher.Constraint("DistanceY", -1, 1, 0, 2, 50.0))
sketch33.addConstraint(Sketcher.Constraint("DistanceX", -1, 1, 2, 2, 100.0))
sketch33.addConstraint(Sketcher.Constraint("DistanceY", -1, 1, 3, 2, 40.0))
sketch33.addConstraint(Sketcher.Constraint("DistanceY", 3, 1, 3, 2, 37.97959))
sketch33.addConstraint(Sketcher.Constraint("DistanceY", -1, 1, 1, 2, 18.350342))
pocket22 = doc.addObject("PartDesign::Pocket", "Pocket021")
body.addObject(pocket22)
pocket22.Profile = sketch33
pocket22.Length = 80
pocket22.Reversed = True

sketch34 = doc.addObject("Sketcher::SketchObject", "Sketch033")
body.addObject(sketch34)
sketch34.Placement = App.Placement(Vector(120.689655, 0, 48.275862), App.Rotation(Vector(-0.371390676, 0, 0.928476691), Vector(0, 1, 0), Vector(-0.928476691, 0, -0.371390676), "ZXY"))
add_polygon(sketch34, [(2, 0), (-32, 0), (-27, -13)])
sketch34.addConstraint(Sketcher.Constraint("Horizontal", 0))
sketch34.addConstraint(Sketcher.Constraint("PointOnObject", 0, 2, -1))
sketch34.addConstraint(Sketcher.Constraint("Distance", 1, 13.876209))
sketch34.addConstraint(Sketcher.Constraint("DistanceX", 0, 2, 0, 1, 34.087725))
sketch34.addConstraint(Sketcher.Constraint("DistanceX", 0, 2, -1, 1, 32.230772))
sketch34.addConstraint(Sketcher.Constraint("Distance", 2, 31.099804))
pocket23 = doc.addObject("PartDesign::Pocket", "Pocket022")
body.addObject(pocket23)
pocket23.Profile = sketch34
pocket23.Length = 80

sketch35 = doc.addObject("Sketcher::SketchObject", "Sketch034")
body.addObject(sketch35)
sketch35.Placement = App.Placement(Vector(-0.114281, -0.690449, 0.285703), App.Rotation(Vector(0.988505824, -0.139695443, 0.057805011), Vector(0, -0.382351793, -0.924016832), Vector(0.15118279, 0.91339602, -0.377956974), "ZXY"))
add_polygon(sketch35, [(134, -18), (122, -46), (132, -18), (119, -18), (119, -48), (134, -48)])
sketch35.addConstraint(Sketcher.Constraint("Horizontal", 2))
sketch35.addConstraint(Sketcher.Constraint("Vertical", 3))
sketch35.addConstraint(Sketcher.Constraint("Horizontal", 4))
sketch35.addConstraint(Sketcher.Constraint("Vertical", 5))
sketch35.addConstraint(Sketcher.Constraint("Horizontal", 2, 2, 5, 2))
sketch35.addConstraint(Sketcher.Constraint("DistanceX", 4, 1, 4, 2, 14.903261))
sketch35.addConstraint(Sketcher.Constraint("DistanceY", 3, 2, 3, 1, 30.48064))
sketch35.addConstraint(Sketcher.Constraint("Distance", 0, 31.010311))
sketch35.addConstraint(Sketcher.Constraint("DistanceX", 2, 2, 2, 1, 12.414693))
sketch35.addConstraint(Sketcher.Constraint("DistanceX", -1, 1, 0, 2, 121.510949))
sketch35.addConstraint(Sketcher.Constraint("DistanceY", 0, 2, -1, 1, 46.200842))
sketch35.addConstraint(Sketcher.Constraint("DistanceX", -1, 1, 1, 2, 131.829452))
pocket24 = doc.addObject("PartDesign::Pocket", "Pocket023")
body.addObject(pocket24)
pocket24.Profile = sketch35
pocket24.Length = 80

sketch36 = doc.addObject("Sketcher::SketchObject", "Sketch035")
body.addObject(sketch36)
sketch36.Placement = App.Placement(Vector(0.666667, 3.333333, -1.333333), App.Rotation(Vector(-0.98319208, 0.169515876, -0.06780635), Vector(0, -0.371390677, -0.928476691), Vector(-0.182574186, -0.912870929, 0.365148372), "ZXY"))
add_polygon(sketch36, [(-144, 253), (-144, -47), (-118, -47), (-118, 253)])
sketch36.addConstraint(Sketcher.Constraint("Vertical", 0))
sketch36.addConstraint(Sketcher.Constraint("Horizontal", 1))
sketch36.addConstraint(Sketcher.Constraint("Vertical", 2))
sketch36.addConstraint(Sketcher.Constraint("Horizontal", 3))
sketch36.addConstraint(Sketcher.Constraint("DistanceY", 0, 2, 0, 1, 300.0))
sketch36.addConstraint(Sketcher.Constraint("DistanceX", 1, 1, 1, 2, 25.130664))
sketch36.addConstraint(Sketcher.Constraint("DistanceY", 0, 2, -1, 1, 46.95593))
sketch36.addConstraint(Sketcher.Constraint("DistanceX", 0, 2, -1, 1, 143.613867))
pocket25 = doc.addObject("PartDesign::Pocket", "Pocket024")
body.addObject(pocket25)
pocket25.Profile = sketch36
pocket25.Length = 80

sketch37 = doc.addObject("Sketcher::SketchObject", "Sketch036")
body.addObject(sketch37)
sketch37.AttachmentSupport = (doc.XY_Plane, [""])
sketch37.MapMode = "FlatFace"
add_polygon(sketch37, [(100, 80), (100, 0), (0, 0), (0, 80)])
sketch37.addConstraint(Sketcher.Constraint("Vertical", 0))
sketch37.addConstraint(Sketcher.Constraint("Horizontal", 1))
sketch37.addConstraint(Sketcher.Constraint("Vertical", 2))
sketch37.addConstraint(Sketcher.Constraint("Horizontal", 3))
sketch37.addConstraint(Sketcher.Constraint("Coincident", 1, 2, -1, 1))
sketch37.addConstraint(Sketcher.Constraint("DistanceX", 1, 2, 1, 1, 100.0))
sketch37.addConstraint(Sketcher.Constraint("DistanceY", 0, 2, 0, 1, 80.0))
pocket26 = doc.addObject("PartDesign::Pocket", "Pocket025")
body.addObject(pocket26)
pocket26.Profile = sketch37
pocket26.Length = 80

sketch38 = doc.addObject("Sketcher::SketchObject", "Sketch037")
body.addObject(sketch38)
sketch38.AttachmentSupport = (doc.XY_Plane, [""])
sketch38.MapMode = "FlatFace"
add_polygon(sketch38, [(100, 8), (100, 4), (103.3, 7.3)])
sketch38.addConstraint(Sketcher.Constraint("Vertical", 0))
sketch38.addConstraint(Sketcher.Constraint("Angle", 1, Q("45 deg")))
sketch38.addConstraint(Sketcher.Constraint("DistanceX", -1, 1, 0, 2, 100.0))
sketch38.addConstraint(Sketcher.Constraint("DistanceY", -1, 1, 2, 2, 8.0))
sketch38.addConstraint(Sketcher.Constraint("DistanceY", 0, 2, 0, 1, 3.959179))
sketch38.addConstraint(Sketcher.Constraint("Distance", 1, 4.665938))
pocket27 = doc.addObject("PartDesign::Pocket", "Pocket026")
body.addObject(pocket27)
pocket27.Profile = sketch38
pocket27.Length = 80

sketch39 = doc.addObject("Sketcher::SketchObject", "Sketch038")
body.addObject(sketch39)
sketch39.AttachmentSupport = (doc.XZ_Plane, [""])
sketch39.MapMode = "FlatFace"
add_polygon(sketch39, [(50, 0), (96, 0), (65, -15)])
sketch39.addConstraint(Sketcher.Constraint("Horizontal", 0))
sketch39.addConstraint(Sketcher.Constraint("PointOnObject", 0, 2, -1))
sketch39.addConstraint(Sketcher.Constraint("Angle", 2, Q("135 deg")))
sketch39.addConstraint(Sketcher.Constraint("DistanceX", -1, 1, 2, 2, 50.0))
sketch39.addConstraint(Sketcher.Constraint("DistanceX", 0, 1, 0, 2, 45.959179))
sketch39.addConstraint(Sketcher.Constraint("Distance", 1, 34.25595))
pocket28 = doc.addObject("PartDesign::Pocket", "Pocket027")
body.addObject(pocket28)
pocket28.Profile = sketch39
pocket28.Length = 80
pocket28.Reversed = True

sketch40 = doc.addObject("Sketcher::SketchObject", "Sketch039")
body.addObject(sketch40)
sketch40.Placement = App.Placement(Vector(25, 0, 25), App.Rotation(Vector(0.707106781, 0, -0.707106781), Vector(0, 0.999999999, 0), Vector(0.707106781, 0, 0.707106781), "ZXY"))
add_polygon(sketch40, [(35, 0), (35, -6), (51, -13), (57, 0)])
sketch40.addConstraint(Sketcher.Constraint("Vertical", 0))
sketch40.addConstraint(Sketcher.Constraint("Horizontal", 3))
sketch40.addConstraint(Sketcher.Constraint("PointOnObject", 2, 2, -1))
sketch40.addConstraint(Sketcher.Constraint("DistanceY", 0, 2, 0, 1, 6.0))
sketch40.addConstraint(Sketcher.Constraint("DistanceX", 3, 2, 3, 1, 21.665365))
sketch40.addConstraint(Sketcher.Constraint("DistanceX", -1, 1, 0, 2, 35.355339))
sketch40.addConstraint(Sketcher.Constraint("DistanceX", 0, 2, 1, 2, 15.697448))
sketch40.addConstraint(Sketcher.Constraint("Distance", 1, 17.051793))
pocket29 = doc.addObject("PartDesign::Pocket", "Pocket028")
body.addObject(pocket29)
pocket29.Profile = sketch40
pocket29.Length = 80

sketch41 = doc.addObject("Sketcher::SketchObject", "Sketch040")
body.addObject(sketch41)
sketch41.Placement = App.Placement(Vector(2.288136, 7.627119, -2.288136), App.Rotation(Vector(0.961108118, -0.26452517, 0.079357551), Vector(0, -0.287347885, -0.957826286), Vector(0.276172385, 0.920574618, -0.276172385), "ZXY"))
add_polygon(sketch41, [(47, 19), (47, 5), (63, 5), (63, 19)])
sketch41.addConstraint(Sketcher.Constraint("Vertical", 0))
sketch41.addConstraint(Sketcher.Constraint("Horizontal", 1))
sketch41.addConstraint(Sketcher.Constraint("Vertical", 2))
sketch41.addConstraint(Sketcher.Constraint("Horizontal", 3))
sketch41.addConstraint(Sketcher.Constraint("DistanceX", 1, 1, 1, 2, 16.617381))
sketch41.addConstraint(Sketcher.Constraint("DistanceY", 0, 2, 0, 1, 14.27381))
sketch41.addConstraint(Sketcher.Constraint("DistanceX", -1, 1, 0, 2, 46.52116))
sketch41.addConstraint(Sketcher.Constraint("DistanceY", -1, 1, 0, 2, 4.597566))
pocket30 = doc.addObject("PartDesign::Pocket", "Pocket029")
body.addObject(pocket30)
pocket30.Profile = sketch41
pocket30.Length = 80

sketch42 = doc.addObject("Sketcher::SketchObject", "Sketch041")
body.addObject(sketch42)
sketch42.AttachmentSupport = (doc.XY_Plane, [""])
sketch42.MapMode = "FlatFace"
add_polygon(sketch42, [(100, 14), (100, -43), (0, -43), (0, 14)])
sketch42.addConstraint(Sketcher.Constraint("Vertical", 0))
sketch42.addConstraint(Sketcher.Constraint("Horizontal", 1))
sketch42.addConstraint(Sketcher.Constraint("Vertical", 2))
sketch42.addConstraint(Sketcher.Constraint("Horizontal", 3))
sketch42.addConstraint(Sketcher.Constraint("PointOnObject", 1, 2, -2))
sketch42.addConstraint(Sketcher.Constraint("DistanceX", 1, 2, 1, 1, 100.195152))
sketch42.addConstraint(Sketcher.Constraint("DistanceY", 0, 2, 0, 1, 57.157925))
sketch42.addConstraint(Sketcher.Constraint("DistanceY", -1, 1, 2, 2, 13.717729))
pocket31 = doc.addObject("PartDesign::Pocket", "Pocket030")
body.addObject(pocket31)
pocket31.Profile = sketch42
pocket31.Length = 80

sketch43 = doc.addObject("Sketcher::SketchObject", "Sketch042")
body.addObject(sketch43)
sketch43.AttachmentSupport = (doc.YZ_Plane, [""])
sketch43.MapMode = "FlatFace"
sketch43.AttachmentOffset = App.Placement(Vector(0, 0, 100), App.Rotation())
add_polygon(sketch43, [(20, 80), (0, 80), (0, 60), (20, 60)])
sketch43.addConstraint(Sketcher.Constraint("Horizontal", 0))
sketch43.addConstraint(Sketcher.Constraint("Vertical", 1))
sketch43.addConstraint(Sketcher.Constraint("Horizontal", 2))
sketch43.addConstraint(Sketcher.Constraint("Vertical", 3))
sketch43.addConstraint(Sketcher.Constraint("PointOnObject", 0, 2, -2))
sketch43.addConstraint(Sketcher.Constraint("Equal", 2, 1))
sketch43.addConstraint(Sketcher.Constraint("DistanceX", 0, 2, 0, 1, 20.0))
sketch43.addConstraint(Sketcher.Constraint("DistanceY", -1, 1, 0, 2, 80.0))
pocket32 = doc.addObject("PartDesign::Pocket", "Pocket031")
body.addObject(pocket32)
pocket32.Profile = sketch43
pocket32.Length = 80

doc.recompute()
